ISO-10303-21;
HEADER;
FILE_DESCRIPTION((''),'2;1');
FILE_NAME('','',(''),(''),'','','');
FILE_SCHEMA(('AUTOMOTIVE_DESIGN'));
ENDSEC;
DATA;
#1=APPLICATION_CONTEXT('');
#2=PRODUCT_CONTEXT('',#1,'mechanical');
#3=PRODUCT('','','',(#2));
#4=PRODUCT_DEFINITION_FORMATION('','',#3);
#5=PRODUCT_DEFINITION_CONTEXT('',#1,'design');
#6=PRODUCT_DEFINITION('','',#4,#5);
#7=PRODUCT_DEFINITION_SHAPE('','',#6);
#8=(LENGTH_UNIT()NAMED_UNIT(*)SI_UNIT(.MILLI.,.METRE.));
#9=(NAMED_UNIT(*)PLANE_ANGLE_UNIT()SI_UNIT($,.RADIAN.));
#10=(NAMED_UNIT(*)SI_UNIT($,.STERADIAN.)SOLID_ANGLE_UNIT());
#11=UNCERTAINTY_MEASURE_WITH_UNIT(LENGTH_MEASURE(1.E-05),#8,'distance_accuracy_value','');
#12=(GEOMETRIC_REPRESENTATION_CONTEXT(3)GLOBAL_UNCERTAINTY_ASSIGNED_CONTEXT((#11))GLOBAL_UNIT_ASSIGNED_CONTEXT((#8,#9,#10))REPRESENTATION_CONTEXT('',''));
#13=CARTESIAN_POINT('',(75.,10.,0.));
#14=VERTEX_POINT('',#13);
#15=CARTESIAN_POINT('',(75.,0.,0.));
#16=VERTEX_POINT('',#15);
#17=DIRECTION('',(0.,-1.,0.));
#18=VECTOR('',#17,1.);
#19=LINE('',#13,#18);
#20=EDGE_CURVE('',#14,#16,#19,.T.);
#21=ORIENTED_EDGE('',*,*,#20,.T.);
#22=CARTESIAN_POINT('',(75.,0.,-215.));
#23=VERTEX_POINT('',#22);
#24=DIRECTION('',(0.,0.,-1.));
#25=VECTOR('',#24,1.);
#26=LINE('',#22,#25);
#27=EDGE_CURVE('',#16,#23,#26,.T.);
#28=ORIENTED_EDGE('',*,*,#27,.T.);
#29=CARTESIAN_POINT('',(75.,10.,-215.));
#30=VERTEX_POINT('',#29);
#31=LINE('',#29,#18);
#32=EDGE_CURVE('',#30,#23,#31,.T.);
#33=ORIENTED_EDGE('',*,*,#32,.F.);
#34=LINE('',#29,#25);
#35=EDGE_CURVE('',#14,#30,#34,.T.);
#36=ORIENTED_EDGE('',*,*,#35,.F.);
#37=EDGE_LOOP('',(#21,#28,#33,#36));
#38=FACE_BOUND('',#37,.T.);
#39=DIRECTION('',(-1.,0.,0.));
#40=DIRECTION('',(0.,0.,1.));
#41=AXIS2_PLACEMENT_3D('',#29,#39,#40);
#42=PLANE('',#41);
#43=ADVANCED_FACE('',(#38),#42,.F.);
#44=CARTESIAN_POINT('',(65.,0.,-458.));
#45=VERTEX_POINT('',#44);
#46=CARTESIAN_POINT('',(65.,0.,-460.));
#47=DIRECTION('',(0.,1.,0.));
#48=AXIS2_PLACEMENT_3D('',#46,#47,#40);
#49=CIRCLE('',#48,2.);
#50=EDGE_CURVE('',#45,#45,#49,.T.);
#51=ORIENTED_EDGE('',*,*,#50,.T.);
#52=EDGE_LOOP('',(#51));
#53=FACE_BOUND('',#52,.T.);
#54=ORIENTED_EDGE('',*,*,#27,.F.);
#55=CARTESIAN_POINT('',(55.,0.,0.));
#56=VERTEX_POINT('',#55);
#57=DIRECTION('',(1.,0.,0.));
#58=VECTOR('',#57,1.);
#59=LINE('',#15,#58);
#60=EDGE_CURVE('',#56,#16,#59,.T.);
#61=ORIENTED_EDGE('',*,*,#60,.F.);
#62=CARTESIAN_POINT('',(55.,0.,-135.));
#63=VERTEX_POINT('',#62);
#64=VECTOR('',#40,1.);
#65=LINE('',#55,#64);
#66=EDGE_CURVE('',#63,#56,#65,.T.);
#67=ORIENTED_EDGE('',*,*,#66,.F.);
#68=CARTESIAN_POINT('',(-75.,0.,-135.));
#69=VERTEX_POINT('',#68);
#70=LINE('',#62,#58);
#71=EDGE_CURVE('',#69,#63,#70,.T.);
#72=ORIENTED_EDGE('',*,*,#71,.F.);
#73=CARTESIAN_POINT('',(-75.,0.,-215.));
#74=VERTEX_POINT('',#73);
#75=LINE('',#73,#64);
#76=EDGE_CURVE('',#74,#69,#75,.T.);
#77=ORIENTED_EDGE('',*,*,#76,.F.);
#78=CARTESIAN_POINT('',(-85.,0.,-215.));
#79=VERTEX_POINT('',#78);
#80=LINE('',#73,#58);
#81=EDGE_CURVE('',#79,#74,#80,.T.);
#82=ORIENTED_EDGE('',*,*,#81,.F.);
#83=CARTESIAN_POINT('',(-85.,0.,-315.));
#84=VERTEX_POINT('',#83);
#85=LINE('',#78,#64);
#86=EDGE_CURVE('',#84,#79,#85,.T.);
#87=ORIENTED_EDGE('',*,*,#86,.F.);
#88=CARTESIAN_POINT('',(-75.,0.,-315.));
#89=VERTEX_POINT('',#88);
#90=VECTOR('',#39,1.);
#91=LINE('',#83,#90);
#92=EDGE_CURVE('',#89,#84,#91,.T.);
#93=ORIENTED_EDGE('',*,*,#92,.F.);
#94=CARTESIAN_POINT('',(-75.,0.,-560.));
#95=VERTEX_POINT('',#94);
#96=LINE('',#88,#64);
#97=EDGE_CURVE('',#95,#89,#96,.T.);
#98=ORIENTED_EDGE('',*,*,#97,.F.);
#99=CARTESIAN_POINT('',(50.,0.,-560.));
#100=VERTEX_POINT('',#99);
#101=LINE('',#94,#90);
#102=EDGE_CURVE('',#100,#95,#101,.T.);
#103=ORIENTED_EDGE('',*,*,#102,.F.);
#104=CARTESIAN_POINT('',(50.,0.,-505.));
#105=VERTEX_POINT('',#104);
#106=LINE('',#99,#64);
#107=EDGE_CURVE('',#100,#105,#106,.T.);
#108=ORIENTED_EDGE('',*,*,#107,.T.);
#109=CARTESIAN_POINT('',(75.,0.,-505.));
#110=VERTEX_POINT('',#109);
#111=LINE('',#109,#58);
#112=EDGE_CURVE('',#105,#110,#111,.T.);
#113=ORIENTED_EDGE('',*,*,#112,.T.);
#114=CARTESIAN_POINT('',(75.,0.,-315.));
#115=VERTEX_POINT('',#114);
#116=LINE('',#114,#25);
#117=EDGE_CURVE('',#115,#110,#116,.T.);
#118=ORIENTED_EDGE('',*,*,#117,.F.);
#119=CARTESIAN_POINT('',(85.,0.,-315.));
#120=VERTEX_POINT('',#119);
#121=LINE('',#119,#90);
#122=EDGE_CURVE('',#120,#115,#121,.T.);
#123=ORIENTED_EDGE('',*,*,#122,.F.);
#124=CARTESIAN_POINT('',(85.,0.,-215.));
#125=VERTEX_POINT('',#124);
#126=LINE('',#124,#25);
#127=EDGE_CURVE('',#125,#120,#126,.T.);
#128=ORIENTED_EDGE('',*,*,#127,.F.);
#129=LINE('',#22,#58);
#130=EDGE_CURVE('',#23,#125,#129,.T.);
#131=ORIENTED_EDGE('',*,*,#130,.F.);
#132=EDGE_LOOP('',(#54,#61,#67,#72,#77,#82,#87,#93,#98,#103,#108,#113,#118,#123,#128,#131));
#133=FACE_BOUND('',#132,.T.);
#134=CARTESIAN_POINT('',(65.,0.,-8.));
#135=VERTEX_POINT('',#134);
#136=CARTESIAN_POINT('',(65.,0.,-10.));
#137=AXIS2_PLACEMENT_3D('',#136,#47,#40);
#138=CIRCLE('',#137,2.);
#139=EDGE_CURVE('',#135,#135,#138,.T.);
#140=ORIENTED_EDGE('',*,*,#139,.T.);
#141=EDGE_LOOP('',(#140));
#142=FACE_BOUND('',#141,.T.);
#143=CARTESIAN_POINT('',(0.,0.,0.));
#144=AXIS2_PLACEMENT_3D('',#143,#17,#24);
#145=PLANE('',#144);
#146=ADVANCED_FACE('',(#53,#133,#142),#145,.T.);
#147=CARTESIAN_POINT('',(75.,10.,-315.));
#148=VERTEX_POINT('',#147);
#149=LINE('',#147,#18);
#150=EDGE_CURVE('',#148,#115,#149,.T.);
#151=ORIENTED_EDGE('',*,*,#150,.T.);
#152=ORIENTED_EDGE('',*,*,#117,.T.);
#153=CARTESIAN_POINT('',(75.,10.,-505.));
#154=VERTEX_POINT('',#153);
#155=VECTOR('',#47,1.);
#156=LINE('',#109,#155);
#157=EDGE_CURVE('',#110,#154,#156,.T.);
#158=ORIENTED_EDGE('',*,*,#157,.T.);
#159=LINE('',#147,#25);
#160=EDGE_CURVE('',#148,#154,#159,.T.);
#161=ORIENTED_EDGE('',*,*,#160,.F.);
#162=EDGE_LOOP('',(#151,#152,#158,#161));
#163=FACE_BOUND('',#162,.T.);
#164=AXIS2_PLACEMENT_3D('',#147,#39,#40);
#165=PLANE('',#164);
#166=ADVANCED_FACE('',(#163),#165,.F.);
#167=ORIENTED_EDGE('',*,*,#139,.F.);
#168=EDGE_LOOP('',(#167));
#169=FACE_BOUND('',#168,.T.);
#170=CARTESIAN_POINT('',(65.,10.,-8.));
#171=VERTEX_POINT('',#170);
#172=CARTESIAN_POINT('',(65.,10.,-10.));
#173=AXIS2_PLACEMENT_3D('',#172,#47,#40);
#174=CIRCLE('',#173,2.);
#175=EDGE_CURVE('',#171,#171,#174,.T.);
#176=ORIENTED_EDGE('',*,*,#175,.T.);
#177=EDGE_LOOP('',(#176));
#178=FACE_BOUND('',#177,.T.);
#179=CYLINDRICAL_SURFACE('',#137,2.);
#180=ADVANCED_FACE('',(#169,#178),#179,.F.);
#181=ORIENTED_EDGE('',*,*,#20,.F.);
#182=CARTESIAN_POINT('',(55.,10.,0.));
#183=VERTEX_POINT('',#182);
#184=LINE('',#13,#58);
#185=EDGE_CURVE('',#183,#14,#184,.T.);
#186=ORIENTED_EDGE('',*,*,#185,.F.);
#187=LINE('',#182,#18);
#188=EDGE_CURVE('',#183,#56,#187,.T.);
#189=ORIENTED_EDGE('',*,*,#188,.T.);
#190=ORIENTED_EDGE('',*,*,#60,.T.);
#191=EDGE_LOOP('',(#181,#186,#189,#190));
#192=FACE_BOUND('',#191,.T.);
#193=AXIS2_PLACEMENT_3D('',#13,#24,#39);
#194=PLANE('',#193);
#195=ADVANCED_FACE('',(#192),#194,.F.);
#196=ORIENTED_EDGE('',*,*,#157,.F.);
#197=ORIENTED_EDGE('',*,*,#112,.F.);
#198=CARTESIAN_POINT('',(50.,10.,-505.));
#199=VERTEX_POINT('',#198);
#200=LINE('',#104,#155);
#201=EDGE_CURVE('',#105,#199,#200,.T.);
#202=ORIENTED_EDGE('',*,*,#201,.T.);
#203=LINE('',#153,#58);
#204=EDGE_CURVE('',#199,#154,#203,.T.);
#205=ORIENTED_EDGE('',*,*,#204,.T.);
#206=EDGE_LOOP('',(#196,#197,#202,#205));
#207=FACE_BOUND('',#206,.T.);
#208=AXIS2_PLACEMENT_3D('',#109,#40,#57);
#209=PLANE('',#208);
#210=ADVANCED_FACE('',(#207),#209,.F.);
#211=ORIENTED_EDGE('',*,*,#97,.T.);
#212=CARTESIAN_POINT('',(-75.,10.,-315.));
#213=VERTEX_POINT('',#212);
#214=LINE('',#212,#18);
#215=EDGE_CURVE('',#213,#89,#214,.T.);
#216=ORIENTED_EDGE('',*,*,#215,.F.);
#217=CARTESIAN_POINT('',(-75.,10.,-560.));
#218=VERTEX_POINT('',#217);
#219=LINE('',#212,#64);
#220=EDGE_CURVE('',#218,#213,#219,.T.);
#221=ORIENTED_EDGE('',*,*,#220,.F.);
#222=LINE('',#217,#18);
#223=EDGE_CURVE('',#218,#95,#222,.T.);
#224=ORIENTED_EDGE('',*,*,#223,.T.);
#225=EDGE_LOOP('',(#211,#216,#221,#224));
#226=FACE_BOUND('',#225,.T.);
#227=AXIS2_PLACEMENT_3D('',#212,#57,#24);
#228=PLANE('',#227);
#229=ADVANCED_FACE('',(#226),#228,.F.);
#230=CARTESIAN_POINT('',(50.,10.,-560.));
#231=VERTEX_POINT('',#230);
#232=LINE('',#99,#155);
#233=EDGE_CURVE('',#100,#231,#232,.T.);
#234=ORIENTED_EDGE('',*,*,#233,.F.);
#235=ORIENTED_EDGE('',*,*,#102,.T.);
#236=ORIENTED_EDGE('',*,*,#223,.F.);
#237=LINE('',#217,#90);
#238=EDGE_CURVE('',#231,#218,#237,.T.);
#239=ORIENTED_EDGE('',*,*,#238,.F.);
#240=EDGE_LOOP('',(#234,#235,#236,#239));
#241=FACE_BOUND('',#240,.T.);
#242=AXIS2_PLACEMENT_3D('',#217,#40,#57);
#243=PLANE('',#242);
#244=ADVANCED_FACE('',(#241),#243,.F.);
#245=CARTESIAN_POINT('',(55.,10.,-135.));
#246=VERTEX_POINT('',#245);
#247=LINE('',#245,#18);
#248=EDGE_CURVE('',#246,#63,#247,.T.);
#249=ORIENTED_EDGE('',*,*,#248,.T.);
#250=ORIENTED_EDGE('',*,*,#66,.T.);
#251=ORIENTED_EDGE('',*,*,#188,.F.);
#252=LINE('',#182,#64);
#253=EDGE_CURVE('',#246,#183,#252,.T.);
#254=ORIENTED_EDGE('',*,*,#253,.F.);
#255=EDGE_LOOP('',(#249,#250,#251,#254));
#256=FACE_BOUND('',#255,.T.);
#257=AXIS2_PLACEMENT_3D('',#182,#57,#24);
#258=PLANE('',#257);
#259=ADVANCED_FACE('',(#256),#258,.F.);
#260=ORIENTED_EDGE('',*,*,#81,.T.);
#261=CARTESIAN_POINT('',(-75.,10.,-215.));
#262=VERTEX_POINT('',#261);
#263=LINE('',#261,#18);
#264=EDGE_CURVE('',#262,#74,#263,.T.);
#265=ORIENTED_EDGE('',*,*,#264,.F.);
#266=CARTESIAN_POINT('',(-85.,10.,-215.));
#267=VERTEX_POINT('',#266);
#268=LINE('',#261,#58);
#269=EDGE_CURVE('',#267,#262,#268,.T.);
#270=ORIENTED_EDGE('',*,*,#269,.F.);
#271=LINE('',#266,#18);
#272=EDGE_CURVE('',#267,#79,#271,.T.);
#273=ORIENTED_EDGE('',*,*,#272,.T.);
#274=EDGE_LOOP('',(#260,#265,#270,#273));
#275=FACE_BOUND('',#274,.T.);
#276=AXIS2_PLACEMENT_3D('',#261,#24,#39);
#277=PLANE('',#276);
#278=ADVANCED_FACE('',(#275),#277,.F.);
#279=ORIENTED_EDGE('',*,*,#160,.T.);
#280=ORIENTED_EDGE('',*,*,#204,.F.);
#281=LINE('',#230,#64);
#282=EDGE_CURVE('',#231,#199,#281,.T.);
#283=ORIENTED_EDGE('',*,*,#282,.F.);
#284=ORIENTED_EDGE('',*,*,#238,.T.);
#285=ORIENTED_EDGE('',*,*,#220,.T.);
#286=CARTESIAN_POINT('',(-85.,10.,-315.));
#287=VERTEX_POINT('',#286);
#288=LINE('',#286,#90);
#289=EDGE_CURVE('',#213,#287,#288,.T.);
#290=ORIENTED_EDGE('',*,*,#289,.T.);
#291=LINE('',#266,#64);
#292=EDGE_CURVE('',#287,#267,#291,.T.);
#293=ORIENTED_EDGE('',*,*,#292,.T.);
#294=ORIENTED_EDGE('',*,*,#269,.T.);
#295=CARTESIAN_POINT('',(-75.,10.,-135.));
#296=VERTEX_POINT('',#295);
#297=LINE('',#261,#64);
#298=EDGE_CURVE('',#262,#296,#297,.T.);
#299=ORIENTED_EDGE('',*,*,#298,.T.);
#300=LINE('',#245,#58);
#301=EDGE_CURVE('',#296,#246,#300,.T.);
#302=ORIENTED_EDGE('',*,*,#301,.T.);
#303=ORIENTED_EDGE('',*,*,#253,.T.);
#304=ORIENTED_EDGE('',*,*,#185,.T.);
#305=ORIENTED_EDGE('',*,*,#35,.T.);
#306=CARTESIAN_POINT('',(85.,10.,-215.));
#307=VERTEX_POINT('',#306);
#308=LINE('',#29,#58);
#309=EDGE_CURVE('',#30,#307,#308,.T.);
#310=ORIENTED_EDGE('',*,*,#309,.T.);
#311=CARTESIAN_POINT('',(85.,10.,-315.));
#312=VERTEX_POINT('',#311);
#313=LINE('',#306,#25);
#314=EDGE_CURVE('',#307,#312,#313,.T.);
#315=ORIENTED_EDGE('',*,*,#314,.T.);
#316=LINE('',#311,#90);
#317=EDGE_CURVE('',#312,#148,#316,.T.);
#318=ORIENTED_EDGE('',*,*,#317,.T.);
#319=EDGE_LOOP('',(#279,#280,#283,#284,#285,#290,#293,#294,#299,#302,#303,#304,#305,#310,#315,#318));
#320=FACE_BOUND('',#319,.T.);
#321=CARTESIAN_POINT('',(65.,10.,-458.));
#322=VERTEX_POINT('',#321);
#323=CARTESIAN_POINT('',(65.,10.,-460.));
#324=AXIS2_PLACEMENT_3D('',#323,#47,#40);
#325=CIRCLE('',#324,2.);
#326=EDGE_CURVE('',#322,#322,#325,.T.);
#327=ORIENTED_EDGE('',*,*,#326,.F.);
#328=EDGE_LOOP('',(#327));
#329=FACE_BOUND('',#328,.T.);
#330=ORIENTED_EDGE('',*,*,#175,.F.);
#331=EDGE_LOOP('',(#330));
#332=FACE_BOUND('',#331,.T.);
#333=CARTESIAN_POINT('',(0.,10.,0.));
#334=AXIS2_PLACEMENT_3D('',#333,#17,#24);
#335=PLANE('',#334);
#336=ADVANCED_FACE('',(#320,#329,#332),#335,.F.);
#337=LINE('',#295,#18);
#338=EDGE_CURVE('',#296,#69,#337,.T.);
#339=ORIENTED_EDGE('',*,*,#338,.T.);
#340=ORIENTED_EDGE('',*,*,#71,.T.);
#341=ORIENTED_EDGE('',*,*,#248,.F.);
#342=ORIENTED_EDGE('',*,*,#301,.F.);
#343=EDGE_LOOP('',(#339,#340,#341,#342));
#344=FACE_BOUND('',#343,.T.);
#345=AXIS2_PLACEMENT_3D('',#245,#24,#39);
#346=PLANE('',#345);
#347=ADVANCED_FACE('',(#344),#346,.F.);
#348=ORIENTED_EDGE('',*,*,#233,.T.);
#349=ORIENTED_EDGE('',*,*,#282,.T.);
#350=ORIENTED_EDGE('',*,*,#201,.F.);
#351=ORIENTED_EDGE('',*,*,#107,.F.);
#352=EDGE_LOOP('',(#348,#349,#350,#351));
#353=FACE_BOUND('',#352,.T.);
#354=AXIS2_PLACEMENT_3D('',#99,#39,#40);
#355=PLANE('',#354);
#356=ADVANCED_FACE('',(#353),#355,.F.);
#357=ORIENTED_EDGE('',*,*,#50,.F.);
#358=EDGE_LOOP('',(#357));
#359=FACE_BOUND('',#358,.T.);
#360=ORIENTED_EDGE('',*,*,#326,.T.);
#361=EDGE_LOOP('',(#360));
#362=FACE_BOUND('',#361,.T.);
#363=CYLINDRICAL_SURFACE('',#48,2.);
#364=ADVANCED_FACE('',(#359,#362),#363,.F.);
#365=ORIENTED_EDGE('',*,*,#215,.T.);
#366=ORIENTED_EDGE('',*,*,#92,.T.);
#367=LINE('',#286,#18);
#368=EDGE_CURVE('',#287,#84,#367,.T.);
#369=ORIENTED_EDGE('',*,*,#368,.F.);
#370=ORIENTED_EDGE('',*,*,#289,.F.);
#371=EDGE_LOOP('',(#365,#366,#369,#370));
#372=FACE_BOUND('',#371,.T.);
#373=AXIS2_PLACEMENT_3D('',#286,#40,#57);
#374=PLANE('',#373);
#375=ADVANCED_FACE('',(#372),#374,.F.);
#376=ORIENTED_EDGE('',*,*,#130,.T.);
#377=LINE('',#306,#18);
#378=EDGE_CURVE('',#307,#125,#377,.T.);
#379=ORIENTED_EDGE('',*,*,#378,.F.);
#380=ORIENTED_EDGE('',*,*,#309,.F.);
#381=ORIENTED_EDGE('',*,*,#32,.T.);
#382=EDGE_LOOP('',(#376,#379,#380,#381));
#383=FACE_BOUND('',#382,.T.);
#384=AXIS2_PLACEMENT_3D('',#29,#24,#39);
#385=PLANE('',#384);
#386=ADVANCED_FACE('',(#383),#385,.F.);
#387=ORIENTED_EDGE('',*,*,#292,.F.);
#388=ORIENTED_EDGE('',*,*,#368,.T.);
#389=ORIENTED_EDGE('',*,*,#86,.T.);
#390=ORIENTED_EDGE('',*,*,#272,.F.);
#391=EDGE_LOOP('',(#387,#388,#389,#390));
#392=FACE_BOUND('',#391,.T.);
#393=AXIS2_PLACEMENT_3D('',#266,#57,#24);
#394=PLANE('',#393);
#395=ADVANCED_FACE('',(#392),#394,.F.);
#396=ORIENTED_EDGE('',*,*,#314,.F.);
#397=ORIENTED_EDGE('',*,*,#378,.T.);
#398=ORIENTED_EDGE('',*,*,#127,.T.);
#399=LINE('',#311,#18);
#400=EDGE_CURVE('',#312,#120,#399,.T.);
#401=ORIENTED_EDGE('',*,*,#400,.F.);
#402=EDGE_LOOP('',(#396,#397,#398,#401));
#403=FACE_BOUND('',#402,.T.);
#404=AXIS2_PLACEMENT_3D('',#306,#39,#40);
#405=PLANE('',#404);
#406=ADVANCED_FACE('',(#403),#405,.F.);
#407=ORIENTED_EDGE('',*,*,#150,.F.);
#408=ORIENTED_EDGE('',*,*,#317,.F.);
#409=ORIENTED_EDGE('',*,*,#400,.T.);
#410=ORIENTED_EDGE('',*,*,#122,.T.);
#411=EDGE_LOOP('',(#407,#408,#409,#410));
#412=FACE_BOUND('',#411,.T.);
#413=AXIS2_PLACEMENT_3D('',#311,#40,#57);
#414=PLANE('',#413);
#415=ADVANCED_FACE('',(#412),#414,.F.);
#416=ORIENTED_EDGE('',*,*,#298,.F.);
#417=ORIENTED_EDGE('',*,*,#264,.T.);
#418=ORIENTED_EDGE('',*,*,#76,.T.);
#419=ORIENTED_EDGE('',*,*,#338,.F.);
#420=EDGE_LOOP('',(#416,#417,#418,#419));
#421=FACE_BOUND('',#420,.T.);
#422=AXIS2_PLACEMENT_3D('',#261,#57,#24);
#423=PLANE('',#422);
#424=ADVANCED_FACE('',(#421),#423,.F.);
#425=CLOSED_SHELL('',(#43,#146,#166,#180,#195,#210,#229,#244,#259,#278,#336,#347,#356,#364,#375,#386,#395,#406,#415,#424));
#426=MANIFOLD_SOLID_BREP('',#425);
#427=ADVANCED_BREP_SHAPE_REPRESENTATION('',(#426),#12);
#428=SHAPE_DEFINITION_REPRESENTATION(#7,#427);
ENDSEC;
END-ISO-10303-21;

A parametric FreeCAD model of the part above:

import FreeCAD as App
import Part
import Sketcher

V = App.Vector
Q = App.Units.Quantity

doc = App.newDocument("Part")
body = doc.addObject("PartDesign::Body", "Body")

sketch1 = body.newObject("Sketcher::SketchObject", "Sketch")
sketch1.AttachmentSupport = (doc.getObject("XZ_Plane"), [""])
sketch1.MapMode = "FlatFace"
sketch1.addGeometry(Part.LineSegment(V(-75, -215, 0), V(-75, -135, 0)), False)
sketch1.addGeometry(Part.LineSegment(V(-75, -135, 0), V(55, -135, 0)), False)
sketch1.addGeometry(Part.LineSegment(V(55, -135, 0), V(55, 0, 0)), False)
sketch1.addGeometry(Part.LineSegment(V(55, 0, 0), V(75, 0, 0)), False)
sketch1.addGeometry(Part.LineSegment(V(75, 0, 0), V(75, -215, 0)), False)
sketch1.addGeometry(Part.LineSegment(V(75, -215, 0), V(85, -215, 0)), False)
sketch1.addGeometry(Part.LineSegment(V(85, -215, 0), V(85, -315, 0)), False)
sketch1.addGeometry(Part.LineSegment(V(85, -315, 0), V(75, -315, 0)), False)
sketch1.addGeometry(Part.LineSegment(V(75, -315, 0), V(75, -560, 0)), False)
sketch1.addGeometry(Part.LineSegment(V(75, -560, 0), V(-75, -560, 0)), False)
sketch1.addGeometry(Part.LineSegment(V(-75, -560, 0), V(-75, -315, 0)), False)
sketch1.addGeometry(Part.LineSegment(V(-75, -315, 0), V(-85, -315, 0)), False)
sketch1.addGeometry(Part.LineSegment(V(-85, -315, 0), V(-85, -215, 0)), False)
sketch1.addGeometry(Part.LineSegment(V(-85, -215, 0), V(-75, -215, 0)), False)
sketch1.addConstraint(Sketcher.Constraint("Coincident", 0, 2, 1, 1))
sketch1.addConstraint(Sketcher.Constraint("Coincident", 1, 2, 2, 1))
sketch1.addConstraint(Sketcher.Constraint("Coincident", 2, 2, 3, 1))
sketch1.addConstraint(Sketcher.Constraint("Coincident", 3, 2, 4, 1))
sketch1.addConstraint(Sketcher.Constraint("Coincident", 4, 2, 5, 1))
sketch1.addConstraint(Sketcher.Constraint("Coincident", 5, 2, 6, 1))
sketch1.addConstraint(Sketcher.Constraint("Coincident", 6, 2, 7, 1))
sketch1.addConstraint(Sketcher.Constraint("Coincident", 7, 2, 8, 1))
sketch1.addConstraint(Sketcher.Constraint("Coincident", 8, 2, 9, 1))
sketch1.addConstraint(Sketcher.Constraint("Coincident", 9, 2, 10, 1))
sketch1.addConstraint(Sketcher.Constraint("Coincident", 10, 2, 11, 1))
sketch1.addConstraint(Sketcher.Constraint("Coincident", 11, 2, 12, 1))
sketch1.addConstraint(Sketcher.Constraint("Coincident", 12, 2, 13, 1))
sketch1.addConstraint(Sketcher.Constraint("Coincident", 13, 2, 0, 1))
sketch1.addConstraint(Sketcher.Constraint("Vertical", 0))
sketch1.addConstraint(Sketcher.Constraint("Horizontal", 1))
sketch1.addConstraint(Sketcher.Constraint("Vertical", 2))
sketch1.addConstraint(Sketcher.Constraint("Horizontal", 3))
sketch1.addConstraint(Sketcher.Constraint("Vertical", 4))
sketch1.addConstraint(Sketcher.Constraint("Horizontal", 5))
sketch1.addConstraint(Sketcher.Constraint("Vertical", 6))
sketch1.addConstraint(Sketcher.Constraint("Horizontal", 7))
sketch1.addConstraint(Sketcher.Constraint("Vertical", 8))
sketch1.addConstraint(Sketcher.Constraint("Horizontal", 9))
sketch1.addConstraint(Sketcher.Constraint("Vertical", 10))
sketch1.addConstraint(Sketcher.Constraint("Horizontal", 11))
sketch1.addConstraint(Sketcher.Constraint("Vertical", 12))
sketch1.addConstraint(Sketcher.Constraint("Horizontal", 13))
sketch1.addConstraint(Sketcher.Constraint("Symmetric", 7, 2, 10, 2, -2))
sketch1.addConstraint(Sketcher.Constraint("Symmetric", 5, 2, 12, 2, -2))
sketch1.addConstraint(Sketcher.Constraint("PointOnObject", 2, 2, -1))
sketch1.addConstraint(Sketcher.Constraint("Vertical", 4, 2, 7, 2))
sketch1.addConstraint(Sketcher.Constraint("Vertical", 0, 2, 9, 2))
sketch1.addConstraint(Sketcher.Constraint("DistanceX", 1, 1, 1, 2, Q("130 mm")))
sketch1.addConstraint(Sketcher.Constraint("DistanceX", 3, 1, 3, 2, Q("20 mm")))
sketch1.addConstraint(Sketcher.Constraint("DistanceX", 5, 1, 5, 2, Q("10 mm")))
sketch1.addConstraint(Sketcher.Constraint("DistanceY", 0, 1, 0, 2, Q("80 mm")))
sketch1.addConstraint(Sketcher.Constraint("DistanceY", 2, 1, 2, 2, Q("135 mm")))
sketch1.addConstraint(Sketcher.Constraint("DistanceY", 6, 2, 6, 1, Q("100 mm")))
sketch1.addConstraint(Sketcher.Constraint("DistanceY", 8, 2, 8, 1, Q("245 mm")))
pad1 = body.newObject("PartDesign::Pad", "Pad")
pad1.Profile = sketch1
pad1.Length = 10
pad1.Reversed = True

sketch2 = body.newObject("Sketcher::SketchObject", "Sketch001")
sketch2.AttachmentSupport = (doc.getObject("XZ_Plane"), [""])
sketch2.MapMode = "FlatFace"
sketch2.AttachmentOffset = App.Placement(V(0, 0, -10), App.Rotation())
sketch2.addGeometry(Part.Circle(V(65, -10, 0), V(0, 0, 1), 2), False)
sketch2.addGeometry(Part.Circle(V(65, -460, 0), V(0, 0, 1), 2), False)
sketch2.addGeometry(Part.LineSegment(V(50, -560, 0), V(50, -505, 0)), False)
sketch2.addGeometry(Part.LineSegment(V(50, -505, 0), V(75, -505, 0)), False)
sketch2.addGeometry(Part.LineSegment(V(75, -505, 0), V(75, -560, 0)), False)
sketch2.addGeometry(Part.LineSegment(V(75, -560, 0), V(50, -560, 0)), False)
sketch2.addConstraint(Sketcher.Constraint("Coincident", 2, 2, 3, 1))
sketch2.addConstraint(Sketcher.Constraint("Coincident", 3, 2, 4, 1))
sketch2.addConstraint(Sketcher.Constraint("Coincident", 4, 2, 5, 1))
sketch2.addConstraint(Sketcher.Constraint("Coincident", 5, 2, 2, 1))
sketch2.addConstraint(Sketcher.Constraint("Vertical", 2))
sketch2.addConstraint(Sketcher.Constraint("Horizontal", 3))
sketch2.addConstraint(Sketcher.Constraint("Vertical", 4))
sketch2.addConstraint(Sketcher.Constraint("Horizontal", 5))
sketch2.addConstraint(Sketcher.Constraint("Equal", 0, 1))
sketch2.addConstraint(Sketcher.Constraint("Vertical", 0, 3, 1, 3))
sketch2.addConstraint(Sketcher.Constraint("Diameter", 0, Q("4 mm")))
sketch2.addConstraint(Sketcher.Constraint("DistanceX", 3, 1, 3, 2, Q("25 mm")))
sketch2.addConstraint(Sketcher.Constraint("DistanceY", 2, 1, 2, 2, Q("55 mm")))
sketch2.addConstraint(Sketcher.Constraint("DistanceX", -1, 1, 0, 3, Q("65 mm")))
sketch2.addConstraint(Sketcher.Constraint("DistanceY", 0, 3, -1, 1, Q("10 mm")))
sketch2.addConstraint(Sketcher.Constraint("DistanceY", 1, 3, -1, 1, Q("460 mm")))
sketch2.addConstraint(Sketcher.Constraint("DistanceX", -1, 1, 2, 2, Q("50 mm")))
sketch2.addConstraint(Sketcher.Constraint("DistanceY", 2, 2, -1, 1, Q("505 mm")))
pocket1 = body.newObject("PartDesign::Pocket", "Pocket")
pocket1.Profile = sketch2
pocket1.Length = 10
pocket1.Reversed = True

doc.recompute()
